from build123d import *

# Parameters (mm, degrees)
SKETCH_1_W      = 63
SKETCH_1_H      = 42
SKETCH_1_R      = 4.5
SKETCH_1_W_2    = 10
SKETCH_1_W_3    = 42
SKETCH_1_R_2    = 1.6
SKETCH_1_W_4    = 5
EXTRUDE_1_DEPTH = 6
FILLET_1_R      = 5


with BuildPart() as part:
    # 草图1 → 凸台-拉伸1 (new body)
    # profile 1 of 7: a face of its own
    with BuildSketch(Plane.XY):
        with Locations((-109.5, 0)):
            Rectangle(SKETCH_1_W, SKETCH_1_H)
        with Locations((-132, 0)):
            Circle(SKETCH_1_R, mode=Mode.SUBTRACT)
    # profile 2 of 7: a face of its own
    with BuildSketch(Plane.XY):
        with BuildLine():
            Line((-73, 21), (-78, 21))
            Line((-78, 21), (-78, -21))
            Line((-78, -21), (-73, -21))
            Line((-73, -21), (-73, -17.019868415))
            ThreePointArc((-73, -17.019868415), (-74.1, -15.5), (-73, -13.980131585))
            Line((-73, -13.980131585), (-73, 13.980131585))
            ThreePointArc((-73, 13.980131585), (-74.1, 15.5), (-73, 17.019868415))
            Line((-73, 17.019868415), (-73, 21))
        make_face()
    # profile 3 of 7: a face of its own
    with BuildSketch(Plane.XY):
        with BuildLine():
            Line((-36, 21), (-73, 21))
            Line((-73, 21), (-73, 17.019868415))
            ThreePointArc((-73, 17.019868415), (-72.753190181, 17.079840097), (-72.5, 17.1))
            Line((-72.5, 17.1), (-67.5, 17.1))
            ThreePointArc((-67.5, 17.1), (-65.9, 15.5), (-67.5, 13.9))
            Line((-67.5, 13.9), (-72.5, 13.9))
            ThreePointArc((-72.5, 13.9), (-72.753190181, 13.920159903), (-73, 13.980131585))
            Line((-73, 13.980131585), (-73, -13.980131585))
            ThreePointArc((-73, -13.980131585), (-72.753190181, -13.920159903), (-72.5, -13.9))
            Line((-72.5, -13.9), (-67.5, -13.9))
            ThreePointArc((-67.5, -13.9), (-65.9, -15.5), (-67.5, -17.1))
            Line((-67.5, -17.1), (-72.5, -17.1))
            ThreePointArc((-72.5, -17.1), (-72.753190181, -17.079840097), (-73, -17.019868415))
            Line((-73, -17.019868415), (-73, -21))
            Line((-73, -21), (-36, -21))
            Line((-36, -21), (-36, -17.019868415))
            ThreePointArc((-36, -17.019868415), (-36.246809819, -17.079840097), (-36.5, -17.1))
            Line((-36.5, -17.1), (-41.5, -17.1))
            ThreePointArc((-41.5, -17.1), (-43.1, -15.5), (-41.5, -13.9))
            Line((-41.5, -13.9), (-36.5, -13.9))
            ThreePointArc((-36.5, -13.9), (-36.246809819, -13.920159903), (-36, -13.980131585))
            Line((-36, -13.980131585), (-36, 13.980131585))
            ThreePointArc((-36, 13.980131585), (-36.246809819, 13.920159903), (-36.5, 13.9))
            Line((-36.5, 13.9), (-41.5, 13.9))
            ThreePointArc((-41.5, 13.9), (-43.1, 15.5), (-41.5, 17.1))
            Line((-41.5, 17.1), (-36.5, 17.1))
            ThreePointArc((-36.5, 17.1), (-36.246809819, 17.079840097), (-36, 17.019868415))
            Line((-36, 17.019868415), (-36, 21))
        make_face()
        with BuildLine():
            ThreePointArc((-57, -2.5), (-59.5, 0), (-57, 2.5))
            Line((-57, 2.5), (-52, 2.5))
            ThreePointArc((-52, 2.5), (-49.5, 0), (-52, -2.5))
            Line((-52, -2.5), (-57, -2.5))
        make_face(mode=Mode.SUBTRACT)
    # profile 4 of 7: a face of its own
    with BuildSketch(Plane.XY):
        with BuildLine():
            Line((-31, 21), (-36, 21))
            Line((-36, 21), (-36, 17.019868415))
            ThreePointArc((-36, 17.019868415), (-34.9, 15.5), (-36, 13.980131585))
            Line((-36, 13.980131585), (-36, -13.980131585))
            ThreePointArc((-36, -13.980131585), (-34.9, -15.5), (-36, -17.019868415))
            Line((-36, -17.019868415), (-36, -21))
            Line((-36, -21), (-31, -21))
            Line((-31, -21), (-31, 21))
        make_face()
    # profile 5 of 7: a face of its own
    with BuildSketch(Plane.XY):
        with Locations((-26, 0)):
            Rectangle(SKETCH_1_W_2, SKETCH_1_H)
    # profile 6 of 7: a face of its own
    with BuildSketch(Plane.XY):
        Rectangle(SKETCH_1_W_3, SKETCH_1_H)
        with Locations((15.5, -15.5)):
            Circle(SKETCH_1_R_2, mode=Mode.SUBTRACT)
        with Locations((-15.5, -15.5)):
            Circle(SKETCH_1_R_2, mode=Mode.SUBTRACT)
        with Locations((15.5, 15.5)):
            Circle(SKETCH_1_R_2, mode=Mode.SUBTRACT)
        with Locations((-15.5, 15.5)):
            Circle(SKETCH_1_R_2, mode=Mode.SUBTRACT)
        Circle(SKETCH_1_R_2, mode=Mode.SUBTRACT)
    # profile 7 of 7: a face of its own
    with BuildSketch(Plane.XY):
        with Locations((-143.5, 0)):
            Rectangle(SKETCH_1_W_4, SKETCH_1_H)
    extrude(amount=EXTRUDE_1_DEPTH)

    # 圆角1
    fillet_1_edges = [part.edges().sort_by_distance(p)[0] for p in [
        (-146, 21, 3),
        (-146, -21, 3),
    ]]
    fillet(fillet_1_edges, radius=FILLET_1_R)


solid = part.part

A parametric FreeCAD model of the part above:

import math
import FreeCAD as App
import Part
import Sketcher

V = App.Vector


def edges_at(feature, points):
    """Names of the edges that pass closest to the given points."""
    edges = feature.Shape.Edges
    near = lambda p: min(range(len(edges)), key=lambda i: edges[i].distToShape(Part.Vertex(*p))[0])
    return sorted({f"Edge{near(p) + 1}" for p in points})


def add_polygon(sketch, points):
    """Adds a closed chain of lines whose ends are joined by coincident constraints."""
    first, n = sketch.GeometryCount, len(points)
    for a, b in zip(points, points[1:] + points[:1]):
        sketch.addGeometry(Part.LineSegment(App.Vector(*a, 0), App.Vector(*b, 0)), False)
    for i in range(n):
        sketch.addConstraint(Sketcher.Constraint("Coincident", first + i, 2, first + (i + 1) % n, 1))

doc = App.newDocument("Part")
body = doc.addObject("PartDesign::Body", "Body")

# Sketch on XY plane
sketch1 = doc.addObject("Sketcher::SketchObject", "Sketch")
body.addObject(sketch1)
sketch1.AttachmentSupport = (doc.XY_Plane, [""])
sketch1.MapMode = "FlatFace"
add_polygon(sketch1, [(21, -21), (21, 21), (-146, 21), (-146, -21)])  # lines 0-3
sketch1.addGeometry(Part.Circle(V(-132, 0, 0), V(0, 0, 1), 4.5), False)  # 4
sketch1.addGeometry(Part.ArcOfCircle(Part.Circle(V(-72.5, -15.5, 0), V(0, 0, 1), 1.6), math.radians(108), math.radians(252)), False)  # 5
sketch1.addGeometry(Part.ArcOfCircle(Part.Circle(V(-72.5, -15.5, 0), V(0, 0, 1), 1.6), math.radians(90), math.radians(108.21)), False)  # 6
sketch1.addGeometry(Part.LineSegment(V(-72.5, -13.9, 0), V(-67.5, -13.9, 0)), False)  # 7
sketch1.addGeometry(Part.ArcOfCircle(Part.Circle(V(-67.5, -15.5, 0), V(0, 0, 1), 1.6), math.radians(-90), math.radians(90)), False)  # 8
sketch1.addGeometry(Part.LineSegment(V(-67.5, -17.1, 0), V(-72.5, -17.1, 0)), False)  # 9
sketch1.addGeometry(Part.ArcOfCircle(Part.Circle(V(-72.5, -15.5, 0), V(0, 0, 1), 1.6), math.radians(-108.21), math.radians(-90)), False)  # 10
sketch1.addGeometry(Part.ArcOfCircle(Part.Circle(V(-72.5, 15.5, 0), V(0, 0, 1), 1.6), math.radians(108), math.radians(252)), False)  # 11
sketch1.addGeometry(Part.ArcOfCircle(Part.Circle(V(-72.5, 15.5, 0), V(0, 0, 1), 1.6), math.radians(90), math.radians(108.21)), False)  # 12
sketch1.addGeometry(Part.LineSegment(V(-72.5, 17.1, 0), V(-67.5, 17.1, 0)), False)  # 13
sketch1.addGeometry(Part.ArcOfCircle(Part.Circle(V(-67.5, 15.5, 0), V(0, 0, 1), 1.6), math.radians(-90), math.radians(90)), False)  # 14
sketch1.addGeometry(Part.LineSegment(V(-67.5, 13.9, 0), V(-72.5, 13.9, 0)), False)  # 15
sketch1.addGeometry(Part.ArcOfCircle(Part.Circle(V(-72.5, 15.5, 0), V(0, 0, 1), 1.6), math.radians(-108.21), math.radians(-90)), False)  # 16
sketch1.addGeometry(Part.ArcOfCircle(Part.Circle(V(-57, 0, 0), V(0, 0, 1), 2.5), math.radians(90), math.radians(270)), False)  # 17
sketch1.addGeometry(Part.LineSegment(V(-57, 2.5, 0), V(-52, 2.5, 0)), False)  # 18
sketch1.addGeometry(Part.ArcOfCircle(Part.Circle(V(-52, 0, 0), V(0, 0, 1), 2.5), math.radians(-90), math.radians(90)), False)  # 19
sketch1.addGeometry(Part.LineSegment(V(-52, -2.5, 0), V(-57, -2.5, 0)), False)  # 20
sketch1.addGeometry(Part.ArcOfCircle(Part.Circle(V(-36.5, 15.5, 0), V(0, 0, 1), 1.6), math.radians(71.79), math.radians(90)), False)  # 21
sketch1.addGeometry(Part.ArcOfCircle(Part.Circle(V(-36.5, 15.5, 0), V(0, 0, 1), 1.6), math.radians(-72), math.radians(72)), False)  # 22
sketch1.addGeometry(Part.ArcOfCircle(Part.Circle(V(-36.5, 15.5, 0), V(0, 0, 1), 1.6), math.radians(-90), math.radians(-71.79)), False)  # 23
sketch1.addGeometry(Part.LineSegment(V(-36.5, 13.9, 0), V(-41.5, 13.9, 0)), False)  # 24
sketch1.addGeometry(Part.ArcOfCircle(Part.Circle(V(-41.5, 15.5, 0), V(0, 0, 1), 1.6), math.radians(90), math.radians(270)), False)  # 25
sketch1.addGeometry(Part.LineSegment(V(-41.5, 17.1, 0), V(-36.5, 17.1, 0)), False)  # 26
sketch1.addGeometry(Part.ArcOfCircle(Part.Circle(V(-36.5, -15.5, 0), V(0, 0, 1), 1.6), math.radians(71.79), math.radians(90)), False)  # 27
sketch1.addGeometry(Part.ArcOfCircle(Part.Circle(V(-36.5, -15.5, 0), V(0, 0, 1), 1.6), math.radians(-72), math.radians(72)), False)  # 28
sketch1.addGeometry(Part.ArcOfCircle(Part.Circle(V(-36.5, -15.5, 0), V(0, 0, 1), 1.6), math.radians(-90), math.radians(-71.79)), False)  # 29
sketch1.addGeometry(Part.LineSegment(V(-36.5, -17.1, 0), V(-41.5, -17.1, 0)), False)  # 30
sketch1.addGeometry(Part.ArcOfCircle(Part.Circle(V(-41.5, -15.5, 0), V(0, 0, 1), 1.6), math.radians(90), math.radians(270)), False)  # 31
sketch1.addGeometry(Part.LineSegment(V(-41.5, -13.9, 0), V(-36.5, -13.9, 0)), False)  # 32
sketch1.addGeometry(Part.Circle(V(15.5, 15.5, 0), V(0, 0, 1), 1.6), False)  # 33
sketch1.addGeometry(Part.Circle(V(-15.5, -15.5, 0), V(0, 0, 1), 1.6), False)  # 34
sketch1.addGeometry(Part.Circle(V(15.5, -15.5, 0), V(0, 0, 1), 1.6), False)  # 35
sketch1.addGeometry(Part.Circle(V(-15.5, 15.5, 0), V(0, 0, 1), 1.6), False)  # 36
sketch1.addGeometry(Part.Circle(V(0, 0, 0), V(0, 0, 1), 1.6), False)  # 37
sketch1.addConstraint([
    Sketcher.Constraint("Tangent", 5, 1, 6, 2),
    Sketcher.Constraint("Tangent", 6, 1, 7, 1),
    Sketcher.Constraint("Tangent", 7, 2, 8, 2),
    Sketcher.Constraint("Tangent", 8, 1, 9, 1),
    Sketcher.Constraint("Tangent", 9, 2, 10, 2),
    Sketcher.Constraint("Tangent", 10, 1, 5, 2),
    Sketcher.Constraint("Tangent", 11, 1, 12, 2),
    Sketcher.Constraint("Tangent", 12, 1, 13, 1),
    Sketcher.Constraint("Tangent", 13, 2, 14, 2),
    Sketcher.Constraint("Tangent", 14, 1, 15, 1),
    Sketcher.Constraint("Tangent", 15, 2, 16, 2),
    Sketcher.Constraint("Tangent", 16, 1, 11, 2),
    Sketcher.Constraint("Tangent", 17, 1, 18, 1),
    Sketcher.Constraint("Tangent", 18, 2, 19, 2),
    Sketcher.Constraint("Tangent", 19, 1, 20, 1),
    Sketcher.Constraint("Tangent", 20, 2, 17, 2),
    Sketcher.Constraint("Tangent", 21, 1, 22, 2),
    Sketcher.Constraint("Tangent", 22, 1, 23, 2),
    Sketcher.Constraint("Tangent", 23, 1, 24, 1),
    Sketcher.Constraint("Tangent", 24, 2, 25, 2),
    Sketcher.Constraint("Tangent", 25, 1, 26, 1),
    Sketcher.Constraint("Tangent", 26, 2, 21, 2),
    Sketcher.Constraint("Tangent", 27, 1, 28, 2),
    Sketcher.Constraint("Tangent", 28, 1, 29, 2),
    Sketcher.Constraint("Tangent", 29, 1, 30, 1),
    Sketcher.Constraint("Tangent", 30, 2, 31, 2),
    Sketcher.Constraint("Tangent", 31, 1, 32, 1),
    Sketcher.Constraint("Tangent", 32, 2, 27, 2),
    Sketcher.Constraint("Vertical", 0),
    Sketcher.Constraint("Horizontal", 1),
    Sketcher.Constraint("Vertical", 2),
    Sketcher.Constraint("Horizontal", 3),
    Sketcher.Constraint("Horizontal", 7),
    Sketcher.Constraint("Horizontal", 9),
    Sketcher.Constraint("Horizontal", 13),
    Sketcher.Constraint("Horizontal", 15),
    Sketcher.Constraint("Horizontal", 18),
    Sketcher.Constraint("Horizontal", 20),
    Sketcher.Constraint("Horizontal", 24),
    Sketcher.Constraint("Horizontal", 26),
    Sketcher.Constraint("Horizontal", 30),
    Sketcher.Constraint("Horizontal", 32),
    Sketcher.Constraint("Coincident", 37, 3, -1, 1),
    Sketcher.Constraint("Coincident", 23, 3, 21, 3),
    Sketcher.Constraint("Coincident", 29, 3, 27, 3),
    Sketcher.Constraint("Equal", 5, 6),
    Sketcher.Constraint("Equal", 6, 8),
    Sketcher.Constraint("Equal", 10, 11),
    Sketcher.Constraint("Equal", 11, 12),
    Sketcher.Constraint("Equal", 12, 14),
    Sketcher.Constraint("Equal", 16, 21),
    Sketcher.Constraint("Equal", 25, 27),
    Sketcher.Constraint("Equal", 31, 33),
    Sketcher.Constraint("Equal", 33, 34),
    Sketcher.Constraint("Equal", 34, 35),
    Sketcher.Constraint("Equal", 35, 36),
    Sketcher.Constraint("Equal", 36, 37),
    Sketcher.Constraint("Symmetric", 33, 3, 34, 3, -1, 1),
    Sketcher.Constraint("Symmetric", 35, 3, 36, 3, -1, 1),
    Sketcher.Constraint("Symmetric", 34, 3, 35, 3, -2),
    Sketcher.Constraint("Symmetric", 5, 3, 11, 3, -1),
    Sketcher.Constraint("Symmetric", 21, 3, 27, 3, -1),
    Sketcher.Constraint("PointOnObject", 4, 3, -1),
    Sketcher.Constraint("PointOnObject", 17, 3, -1),
    Sketcher.Constraint("Horizontal", 16, 3, 21, 3),
    Sketcher.Constraint("Horizontal", 25, 3, 33, 3),
    Sketcher.Constraint("Horizontal", 11, 1, 21, 1),
    Sketcher.Constraint("Horizontal", 16, 1, 22, 1),
    Sketcher.Constraint("Horizontal", 5, 1, 27, 1),
    Sketcher.Constraint("Horizontal", 10, 1, 28, 1),
    Sketcher.Constraint("Vertical", 8, 3, 14, 3),
    Sketcher.Constraint("Vertical", 25, 3, 31, 3),
    Sketcher.Constraint("Vertical", 5, 1, 10, 1),
    Sketcher.Constraint("Vertical", 10, 1, 11, 1),
    Sketcher.Constraint("Vertical", 11, 1, 16, 1),
    Sketcher.Constraint("Equal", 15, 18),
    Sketcher.Constraint("Equal", 20, 24),
    Sketcher.Constraint("Diameter", 4, 9.0),
    Sketcher.Constraint("Diameter", 33, 3.2),
    Sketcher.Constraint("Radius", 17, 2.5),
    Sketcher.Constraint("DistanceX", 1, 2, 1, 1, 167.0),
    Sketcher.Constraint("DistanceX", 7, 1, 7, 2, 5.0),
    Sketcher.Constraint("DistanceY", 0, 1, 0, 2, 42.0),
    Sketcher.Constraint("DistanceX", 4, 3, -1, 1, 132.0),
    Sketcher.Constraint("DistanceX", 17, 3, -1, 1, 57.0),
    Sketcher.Constraint("DistanceX", -1, 1, 0, 2, 21.0),
    Sketcher.Constraint("DistanceY", -1, 1, 0, 2, 21.0),
    Sketcher.Constraint("DistanceX", 5, 1, -1, 1, 73.0),
    Sketcher.Constraint("DistanceX", 21, 1, -1, 1, 36.0),
    Sketcher.Constraint("DistanceY", 6, 3, 11, 3, 31.0),
    Sketcher.Constraint("DistanceX", 14, 3, 21, 3, 31.0),
    Sketcher.Constraint("DistanceX", 21, 3, 33, 3, 52.0),
])
pad1 = doc.addObject("PartDesign::Pad", "Pad")
body.addObject(pad1)
pad1.Profile = sketch1
pad1.Length = 6
doc.recompute()

fillet = doc.addObject("PartDesign::Fillet", "Fillet")
body.addObject(fillet)
fillet.Base = (pad1, edges_at(pad1, [(-146, 21, 3), (-146, -21, 3)]))
fillet.Radius = 5

doc.recompute()
